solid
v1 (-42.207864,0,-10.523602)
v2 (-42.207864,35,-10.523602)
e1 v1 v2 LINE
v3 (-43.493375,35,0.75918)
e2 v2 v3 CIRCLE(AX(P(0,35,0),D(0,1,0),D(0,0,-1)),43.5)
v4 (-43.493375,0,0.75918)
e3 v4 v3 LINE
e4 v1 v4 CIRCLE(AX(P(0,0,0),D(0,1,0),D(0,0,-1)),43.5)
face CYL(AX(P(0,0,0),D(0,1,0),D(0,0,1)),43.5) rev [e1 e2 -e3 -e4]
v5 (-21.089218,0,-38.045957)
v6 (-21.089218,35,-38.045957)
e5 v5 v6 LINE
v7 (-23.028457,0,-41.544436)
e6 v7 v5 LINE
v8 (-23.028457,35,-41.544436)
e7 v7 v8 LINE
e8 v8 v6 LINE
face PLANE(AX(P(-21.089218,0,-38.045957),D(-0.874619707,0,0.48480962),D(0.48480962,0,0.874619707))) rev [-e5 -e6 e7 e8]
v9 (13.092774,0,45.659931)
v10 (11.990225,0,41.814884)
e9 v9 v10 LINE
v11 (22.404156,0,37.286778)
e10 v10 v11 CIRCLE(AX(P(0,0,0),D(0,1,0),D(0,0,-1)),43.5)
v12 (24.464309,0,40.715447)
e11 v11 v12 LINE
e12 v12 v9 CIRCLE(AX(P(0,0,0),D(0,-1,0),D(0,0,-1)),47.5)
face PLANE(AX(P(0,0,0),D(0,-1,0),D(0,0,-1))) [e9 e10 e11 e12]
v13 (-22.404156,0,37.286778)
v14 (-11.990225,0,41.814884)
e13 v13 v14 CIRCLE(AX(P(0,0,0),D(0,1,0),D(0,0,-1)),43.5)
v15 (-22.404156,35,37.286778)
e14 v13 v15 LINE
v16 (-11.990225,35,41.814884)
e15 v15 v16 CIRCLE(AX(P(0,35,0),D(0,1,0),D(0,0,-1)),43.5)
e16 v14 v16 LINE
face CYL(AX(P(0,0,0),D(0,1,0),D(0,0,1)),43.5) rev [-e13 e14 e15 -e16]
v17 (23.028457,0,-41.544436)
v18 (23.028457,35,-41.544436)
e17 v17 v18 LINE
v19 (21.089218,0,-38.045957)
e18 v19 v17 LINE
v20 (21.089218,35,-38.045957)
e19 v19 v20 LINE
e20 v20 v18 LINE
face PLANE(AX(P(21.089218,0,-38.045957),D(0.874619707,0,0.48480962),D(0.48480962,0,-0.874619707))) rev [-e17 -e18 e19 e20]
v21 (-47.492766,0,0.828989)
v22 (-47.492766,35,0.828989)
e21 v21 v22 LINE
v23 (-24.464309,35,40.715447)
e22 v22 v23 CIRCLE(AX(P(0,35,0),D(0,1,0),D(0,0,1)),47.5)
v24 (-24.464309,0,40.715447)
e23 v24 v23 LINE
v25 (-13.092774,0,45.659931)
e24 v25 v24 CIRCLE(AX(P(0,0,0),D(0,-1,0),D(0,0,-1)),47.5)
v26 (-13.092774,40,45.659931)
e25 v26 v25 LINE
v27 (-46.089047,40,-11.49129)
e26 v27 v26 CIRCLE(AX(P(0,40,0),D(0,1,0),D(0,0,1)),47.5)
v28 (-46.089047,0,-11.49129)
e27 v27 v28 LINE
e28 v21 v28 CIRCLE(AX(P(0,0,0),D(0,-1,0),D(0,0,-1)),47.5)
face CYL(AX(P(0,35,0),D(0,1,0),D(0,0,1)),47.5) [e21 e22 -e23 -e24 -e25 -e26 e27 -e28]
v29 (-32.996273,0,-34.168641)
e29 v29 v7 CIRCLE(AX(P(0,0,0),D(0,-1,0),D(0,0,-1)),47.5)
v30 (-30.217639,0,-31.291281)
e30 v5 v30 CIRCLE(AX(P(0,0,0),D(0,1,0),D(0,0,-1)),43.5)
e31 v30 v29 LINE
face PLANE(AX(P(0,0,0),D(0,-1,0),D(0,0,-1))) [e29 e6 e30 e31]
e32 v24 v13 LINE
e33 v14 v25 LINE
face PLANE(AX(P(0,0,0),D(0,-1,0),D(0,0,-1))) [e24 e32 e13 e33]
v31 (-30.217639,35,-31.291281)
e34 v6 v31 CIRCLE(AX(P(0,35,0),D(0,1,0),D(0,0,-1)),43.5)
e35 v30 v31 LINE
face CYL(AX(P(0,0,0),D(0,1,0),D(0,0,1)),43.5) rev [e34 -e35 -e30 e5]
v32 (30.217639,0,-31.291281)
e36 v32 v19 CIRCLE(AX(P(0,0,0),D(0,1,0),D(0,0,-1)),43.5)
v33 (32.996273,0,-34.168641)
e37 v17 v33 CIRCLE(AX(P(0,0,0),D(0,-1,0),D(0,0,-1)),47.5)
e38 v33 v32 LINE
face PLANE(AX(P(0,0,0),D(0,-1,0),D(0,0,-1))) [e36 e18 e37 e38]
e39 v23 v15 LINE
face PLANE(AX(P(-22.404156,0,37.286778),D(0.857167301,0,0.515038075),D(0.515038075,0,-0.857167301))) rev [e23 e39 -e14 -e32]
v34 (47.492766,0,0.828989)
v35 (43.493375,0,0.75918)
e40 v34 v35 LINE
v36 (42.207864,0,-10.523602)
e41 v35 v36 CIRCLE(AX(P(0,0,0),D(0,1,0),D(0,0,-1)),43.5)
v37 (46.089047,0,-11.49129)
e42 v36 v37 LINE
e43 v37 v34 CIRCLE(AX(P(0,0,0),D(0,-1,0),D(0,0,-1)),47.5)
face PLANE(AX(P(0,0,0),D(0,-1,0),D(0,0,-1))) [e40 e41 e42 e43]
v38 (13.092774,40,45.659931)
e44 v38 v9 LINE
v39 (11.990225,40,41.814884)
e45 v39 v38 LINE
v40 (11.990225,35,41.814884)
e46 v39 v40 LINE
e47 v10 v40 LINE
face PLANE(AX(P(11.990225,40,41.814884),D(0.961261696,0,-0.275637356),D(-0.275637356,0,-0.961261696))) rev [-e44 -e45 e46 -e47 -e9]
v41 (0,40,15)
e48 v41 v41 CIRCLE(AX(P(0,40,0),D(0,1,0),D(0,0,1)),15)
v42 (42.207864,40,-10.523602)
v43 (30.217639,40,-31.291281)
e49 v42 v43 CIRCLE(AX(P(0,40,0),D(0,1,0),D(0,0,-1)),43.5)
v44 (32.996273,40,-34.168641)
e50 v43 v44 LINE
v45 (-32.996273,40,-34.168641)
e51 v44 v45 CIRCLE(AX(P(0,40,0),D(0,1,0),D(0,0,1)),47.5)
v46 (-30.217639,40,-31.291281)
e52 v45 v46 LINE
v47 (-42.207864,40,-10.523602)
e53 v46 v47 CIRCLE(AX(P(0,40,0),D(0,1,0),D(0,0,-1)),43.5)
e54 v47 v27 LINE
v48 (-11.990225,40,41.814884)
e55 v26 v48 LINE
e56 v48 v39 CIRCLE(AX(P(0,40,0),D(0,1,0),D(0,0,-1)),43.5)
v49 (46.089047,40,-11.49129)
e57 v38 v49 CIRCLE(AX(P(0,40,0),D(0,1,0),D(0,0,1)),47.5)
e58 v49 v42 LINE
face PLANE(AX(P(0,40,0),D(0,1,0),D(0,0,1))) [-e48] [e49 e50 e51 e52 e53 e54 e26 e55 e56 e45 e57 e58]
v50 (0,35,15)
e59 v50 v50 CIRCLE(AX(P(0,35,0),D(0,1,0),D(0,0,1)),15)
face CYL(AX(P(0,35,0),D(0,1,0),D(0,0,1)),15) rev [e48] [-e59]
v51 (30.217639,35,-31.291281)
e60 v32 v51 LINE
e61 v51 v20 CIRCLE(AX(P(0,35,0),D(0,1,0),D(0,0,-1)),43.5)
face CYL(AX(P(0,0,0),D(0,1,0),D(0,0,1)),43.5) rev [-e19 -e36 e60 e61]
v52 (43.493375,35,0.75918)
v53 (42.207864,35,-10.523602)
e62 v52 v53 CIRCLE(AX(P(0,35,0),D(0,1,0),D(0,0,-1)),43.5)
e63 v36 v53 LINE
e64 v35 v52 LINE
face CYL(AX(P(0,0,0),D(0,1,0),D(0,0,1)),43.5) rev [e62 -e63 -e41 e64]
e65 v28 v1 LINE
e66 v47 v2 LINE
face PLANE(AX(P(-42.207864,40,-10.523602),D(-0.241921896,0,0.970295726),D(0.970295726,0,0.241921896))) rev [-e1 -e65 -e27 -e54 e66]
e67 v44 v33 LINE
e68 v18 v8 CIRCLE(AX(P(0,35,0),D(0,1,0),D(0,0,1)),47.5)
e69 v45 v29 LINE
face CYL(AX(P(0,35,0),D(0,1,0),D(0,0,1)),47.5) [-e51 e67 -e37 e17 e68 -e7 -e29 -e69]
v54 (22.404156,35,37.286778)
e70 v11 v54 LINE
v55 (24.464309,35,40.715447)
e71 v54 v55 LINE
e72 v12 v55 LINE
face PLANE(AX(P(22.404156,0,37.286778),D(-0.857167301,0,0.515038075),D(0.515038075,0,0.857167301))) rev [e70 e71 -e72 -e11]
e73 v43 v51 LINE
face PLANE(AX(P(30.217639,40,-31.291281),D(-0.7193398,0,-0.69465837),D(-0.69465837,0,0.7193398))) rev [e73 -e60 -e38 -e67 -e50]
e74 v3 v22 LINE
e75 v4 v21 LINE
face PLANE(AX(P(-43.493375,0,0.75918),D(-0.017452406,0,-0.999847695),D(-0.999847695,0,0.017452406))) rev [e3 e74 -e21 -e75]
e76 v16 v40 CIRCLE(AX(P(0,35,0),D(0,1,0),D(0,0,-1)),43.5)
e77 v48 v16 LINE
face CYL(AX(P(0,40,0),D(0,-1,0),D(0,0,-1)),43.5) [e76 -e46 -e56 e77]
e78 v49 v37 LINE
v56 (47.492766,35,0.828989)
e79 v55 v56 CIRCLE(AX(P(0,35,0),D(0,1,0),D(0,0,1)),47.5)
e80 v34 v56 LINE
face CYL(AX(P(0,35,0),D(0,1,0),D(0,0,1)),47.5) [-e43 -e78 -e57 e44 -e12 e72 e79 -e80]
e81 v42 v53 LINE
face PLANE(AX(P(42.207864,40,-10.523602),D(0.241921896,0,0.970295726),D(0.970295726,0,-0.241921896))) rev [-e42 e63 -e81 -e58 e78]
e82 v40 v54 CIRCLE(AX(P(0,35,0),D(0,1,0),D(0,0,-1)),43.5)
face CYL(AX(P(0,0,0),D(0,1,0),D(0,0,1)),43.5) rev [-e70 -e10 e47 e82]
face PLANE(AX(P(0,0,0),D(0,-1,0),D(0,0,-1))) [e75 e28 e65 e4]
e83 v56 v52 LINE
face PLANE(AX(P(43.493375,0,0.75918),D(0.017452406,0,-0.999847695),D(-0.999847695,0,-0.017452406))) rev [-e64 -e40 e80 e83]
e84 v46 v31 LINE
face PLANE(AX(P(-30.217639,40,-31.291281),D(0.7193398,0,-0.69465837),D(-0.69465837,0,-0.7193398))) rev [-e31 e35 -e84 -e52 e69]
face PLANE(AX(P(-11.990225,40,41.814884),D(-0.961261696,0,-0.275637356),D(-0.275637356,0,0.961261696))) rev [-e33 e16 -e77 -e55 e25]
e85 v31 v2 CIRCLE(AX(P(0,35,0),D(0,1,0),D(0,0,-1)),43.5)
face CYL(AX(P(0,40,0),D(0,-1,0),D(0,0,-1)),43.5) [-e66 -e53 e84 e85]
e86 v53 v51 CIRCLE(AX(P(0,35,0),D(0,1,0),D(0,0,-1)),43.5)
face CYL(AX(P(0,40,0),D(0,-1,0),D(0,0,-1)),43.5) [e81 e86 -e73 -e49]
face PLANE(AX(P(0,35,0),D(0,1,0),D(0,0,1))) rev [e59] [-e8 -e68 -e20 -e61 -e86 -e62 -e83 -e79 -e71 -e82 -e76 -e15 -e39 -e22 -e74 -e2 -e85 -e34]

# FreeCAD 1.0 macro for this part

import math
import FreeCAD as App
import Part
import Sketcher
from FreeCAD import Vector
Q = App.Units.Quantity

doc = App.newDocument("Part")
params = doc.addObject("Spreadsheet::Sheet", "Params")
for row, (alias, value) in enumerate([
    ("sketch1_diameter", "95 mm"),
    ("sketch1_diameter2", "30 mm"),
    ("pad1_length", "5 mm"),
    ("sketch2_radius", "43.5 mm"),
    ("sketch2_radius2", "47.5 mm"),
    ("pocket1_length", "5 mm"),
    ("sketch3_radius", "47.5 mm"),
    ("sketch3_radius2", "43.5 mm"),
    ("pad2_length", "35 mm"),
], start=1):
    params.set(f"A{row}", alias)
    params.set(f"B{row}", "=" + value)
    params.setAlias(f"B{row}", alias)

body = doc.addObject("PartDesign::Body", "Body")

sketch1 = doc.addObject("Sketcher::SketchObject", "Sketch")
body.addObject(sketch1)
sketch1.AttachmentSupport = (doc.XZ_Plane, [""])
sketch1.MapMode = "FlatFace"
sketch1.AttachmentOffset = App.Placement(Vector(0, 0, -40), App.Rotation())
sketch1.addGeometry([
    Part.Circle(Vector(0, 0, 0), Vector(0, 0, 1), 48),
    Part.Circle(Vector(0, 0, 0), Vector(0, 0, 1), 15),
], False)
sketch1.addConstraint([
    Sketcher.Constraint("Coincident", 0, 3, -1, 1),
    Sketcher.Constraint("Coincident", 1, 3, -1, 1),
    Sketcher.Constraint("Diameter", 0, Q("95 mm")),
    Sketcher.Constraint("Diameter", 1, Q("30 mm")),
])
sketch1.setExpression("Constraints[2]", "Params.sketch1_diameter")
sketch1.setExpression("Constraints[3]", "Params.sketch1_diameter2")
pad1 = doc.addObject("PartDesign::Pad", "Pad")
body.addObject(pad1)
pad1.Profile = sketch1
pad1.setExpression("Length", "Params.pad1_length")

sketch2 = doc.addObject("Sketcher::SketchObject", "Sketch001")
body.addObject(sketch2)
sketch2.AttachmentSupport = (doc.XZ_Plane, [""])
sketch2.MapMode = "FlatFace"
sketch2.AttachmentOffset = App.Placement(Vector(0, 0, -40), App.Rotation())
sketch2.addGeometry([
    Part.LineSegment(Vector(-13.1, 45.7, 0), Vector(-12, 41.8, 0)),
    Part.ArcOfCircle(Part.Circle(Vector(0, 0, 0), Vector(0, 0, 1), 43.5), math.radians(74), math.radians(106)),
    Part.LineSegment(Vector(12, 41.8, 0), Vector(13.1, 45.7, 0)),
    Part.ArcOfCircle(Part.Circle(Vector(0, 0, 0), Vector(0, 0, 1), 47.5), math.radians(74), math.radians(106)),
    Part.LineSegment(Vector(30.2, -31.3, 0), Vector(33, -34.2, 0)),
    Part.ArcOfCircle(Part.Circle(Vector(0, 0, 0), Vector(0, 0, 1), 47.5), math.radians(-46), math.radians(-14)),
    Part.LineSegment(Vector(46.1, -11.5, 0), Vector(42.2, -10.5, 0)),
    Part.ArcOfCircle(Part.Circle(Vector(0, 0, 0), Vector(0, 0, 1), 43.5), math.radians(-46), math.radians(-14)),
    Part.LineSegment(Vector(-42.2, -10.5, 0), Vector(-46.1, -11.5, 0)),
    Part.ArcOfCircle(Part.Circle(Vector(0, 0, 0), Vector(0, 0, 1), 47.5), math.radians(-166), math.radians(-134)),
    Part.LineSegment(Vector(-33, -34.2, 0), Vector(-30.2, -31.3, 0)),
    Part.ArcOfCircle(Part.Circle(Vector(0, 0, 0), Vector(0, 0, 1), 43.5), math.radians(-166), math.radians(-134)),
], False)
sketch2.addConstraint([
    Sketcher.Constraint("Coincident", 0, 2, 1, 2),
    Sketcher.Constraint("Coincident", 1, 1, 2, 1),
    Sketcher.Constraint("Coincident", 2, 2, 3, 1),
    Sketcher.Constraint("Coincident", 3, 2, 0, 1),
    Sketcher.Constraint("Coincident", 4, 2, 5, 1),
    Sketcher.Constraint("Coincident", 5, 2, 6, 1),
    Sketcher.Constraint("Coincident", 6, 2, 7, 2),
    Sketcher.Constraint("Coincident", 7, 1, 4, 1),
    Sketcher.Constraint("Coincident", 8, 2, 9, 1),
    Sketcher.Constraint("Coincident", 9, 2, 10, 1),
    Sketcher.Constraint("Coincident", 10, 2, 11, 2),
    Sketcher.Constraint("Coincident", 11, 1, 8, 1),
    Sketcher.Constraint("Coincident", 1, 3, -1, 1),
    Sketcher.Constraint("Coincident", 3, 3, -1, 1),
    Sketcher.Constraint("Coincident", 5, 3, -1, 1),
    Sketcher.Constraint("Coincident", 7, 3, -1, 1),
    Sketcher.Constraint("Coincident", 9, 3, -1, 1),
    Sketcher.Constraint("Coincident", 11, 3, -1, 1),
    Sketcher.Constraint("Equal", 3, 5),
    Sketcher.Constraint("Equal", 1, 7),
    Sketcher.Constraint("Equal", 5, 9),
    Sketcher.Constraint("Equal", 7, 11),
    Sketcher.Constraint("Horizontal", 0, 2, 1, 1),
    Sketcher.Constraint("Horizontal", 2, 2, 3, 2),
    Sketcher.Constraint("Horizontal", 5, 2, 8, 2),
    Sketcher.Constraint("Horizontal", 4, 2, 9, 2),
    Sketcher.Constraint("Horizontal", 7, 1, 10, 2),
    Sketcher.Constraint("Horizontal", 6, 2, 11, 1),
    Sketcher.Constraint("Radius", 1, Q("43.5 mm")),
    Sketcher.Constraint("Radius", 3, Q("47.5 mm")),
    Sketcher.Constraint("Angle", 0, Q("-74 deg")),
    Sketcher.Constraint("Angle", 4, Q("-46 deg")),
    Sketcher.Constraint("Angle", 6, Q("166 deg")),
    Sketcher.Constraint("DistanceX", 0, 2, 2, 2, Q("25.082999 mm")),
    Sketcher.Constraint("DistanceY", 4, 2, -1, 1, Q("34.168641 mm")),
    Sketcher.Constraint("DistanceY", 5, 2, -1, 1, Q("11.49129 mm")),
])
sketch2.setExpression("Constraints[28]", "Params.sketch2_radius")
sketch2.setExpression("Constraints[29]", "Params.sketch2_radius2")
pocket1 = doc.addObject("PartDesign::Pocket", "Pocket")
body.addObject(pocket1)
pocket1.Profile = sketch2
pocket1.setExpression("Length", "Params.pocket1_length")
pocket1.Reversed = True

sketch3 = doc.addObject("Sketcher::SketchObject", "Sketch002")
body.addObject(sketch3)
sketch3.AttachmentSupport = (doc.XZ_Plane, [""])
sketch3.MapMode = "FlatFace"
sketch3.AttachmentOffset = App.Placement(Vector(0, 0, -35), App.Rotation())
sketch3.addGeometry([
    Part.LineSegment(Vector(-43.5, 0.8, 0), Vector(-47.5, 0.8, 0)),
    Part.ArcOfCircle(Part.Circle(Vector(0, 0, 0), Vector(0, 0, 1), 47.5), math.radians(179), math.radians(194)),
    Part.LineSegment(Vector(-46.1, -11.5, 0), Vector(-42.2, -10.5, 0)),
    Part.ArcOfCircle(Part.Circle(Vector(0, 0, 0), Vector(0, 0, 1), 43.5), math.radians(179), math.radians(194)),
    Part.LineSegment(Vector(-24.5, 40.7, 0), Vector(-22.4, 37.3, 0)),
    Part.ArcOfCircle(Part.Circle(Vector(0, 0, 0), Vector(0, 0, 1), 43.5), math.radians(106), math.radians(121)),
    Part.LineSegment(Vector(-12, 41.8, 0), Vector(-13.1, 45.7, 0)),
    Part.ArcOfCircle(Part.Circle(Vector(0, 0, 0), Vector(0, 0, 1), 47.5), math.radians(106), math.radians(121)),
    Part.LineSegment(Vector(47.5, 0.8, 0), Vector(43.5, 0.8, 0)),
    Part.ArcOfCircle(Part.Circle(Vector(0, 0, 0), Vector(0, 0, 1), 43.5), math.radians(-14), math.radians(1)),
    Part.LineSegment(Vector(42.2, -10.5, 0), Vector(46.1, -11.5, 0)),
    Part.ArcOfCircle(Part.Circle(Vector(0, 0, 0), Vector(0, 0, 1), 47.5), math.radians(-14), math.radians(1)),
    Part.LineSegment(Vector(22.4, 37.3, 0), Vector(24.5, 40.7, 0)),
    Part.ArcOfCircle(Part.Circle(Vector(0, 0, 0), Vector(0, 0, 1), 47.5), math.radians(59), math.radians(74)),
    Part.LineSegment(Vector(13.1, 45.7, 0), Vector(12, 41.8, 0)),
    Part.ArcOfCircle(Part.Circle(Vector(0, 0, 0), Vector(0, 0, 1), 43.5), math.radians(59), math.radians(74)),
    Part.LineSegment(Vector(-23, -41.5, 0), Vector(-21.1, -38, 0)),
    Part.ArcOfCircle(Part.Circle(Vector(0, 0, 0), Vector(0, 0, 1), 43.5), math.radians(-134), math.radians(-119)),
    Part.LineSegment(Vector(-30.2, -31.3, 0), Vector(-33, -34.2, 0)),
    Part.ArcOfCircle(Part.Circle(Vector(0, 0, 0), Vector(0, 0, 1), 47.5), math.radians(-134), math.radians(-119)),
    Part.LineSegment(Vector(21.1, -38, 0), Vector(23, -41.5, 0)),
    Part.ArcOfCircle(Part.Circle(Vector(0, 0, 0), Vector(0, 0, 1), 47.5), math.radians(-61), math.radians(-46)),
    Part.LineSegment(Vector(33, -34.2, 0), Vector(30.2, -31.3, 0)),
    Part.ArcOfCircle(Part.Circle(Vector(0, 0, 0), Vector(0, 0, 1), 43.5), math.radians(-61), math.radians(-46)),
], False)
sketch3.addConstraint([
    Sketcher.Constraint("Coincident", 0, 2, 1, 1),
    Sketcher.Constraint("Coincident", 1, 2, 2, 1),
    Sketcher.Constraint("Coincident", 2, 2, 3, 2),
    Sketcher.Constraint("Coincident", 3, 1, 0, 1),
    Sketcher.Constraint("Coincident", 4, 2, 5, 2),
    Sketcher.Constraint("Coincident", 5, 1, 6, 1),
    Sketcher.Constraint("Coincident", 6, 2, 7, 1),
    Sketcher.Constraint("Coincident", 7, 2, 4, 1),
    Sketcher.Constraint("Coincident", 8, 2, 9, 2),
    Sketcher.Constraint("Coincident", 9, 1, 10, 1),
    Sketcher.Constraint("Coincident", 10, 2, 11, 1),
    Sketcher.Constraint("Coincident", 11, 2, 8, 1),
    Sketcher.Constraint("Coincident", 12, 2, 13, 1),
    Sketcher.Constraint("Coincident", 13, 2, 14, 1),
    Sketcher.Constraint("Coincident", 14, 2, 15, 2),
    Sketcher.Constraint("Coincident", 15, 1, 12, 1),
    Sketcher.Constraint("Coincident", 16, 2, 17, 2),
    Sketcher.Constraint("Coincident", 17, 1, 18, 1),
    Sketcher.Constraint("Coincident", 18, 2, 19, 1),
    Sketcher.Constraint("Coincident", 19, 2, 16, 1),
    Sketcher.Constraint("Coincident", 20, 2, 21, 1),
    Sketcher.Constraint("Coincident", 21, 2, 22, 1),
    Sketcher.Constraint("Coincident", 22, 2, 23, 2),
    Sketcher.Constraint("Coincident", 23, 1, 20, 1),
    Sketcher.Constraint("Coincident", 1, 3, -1, 1),
    Sketcher.Constraint("Coincident", 3, 3, -1, 1),
    Sketcher.Constraint("Coincident", 5, 3, -1, 1),
    Sketcher.Constraint("Coincident", 7, 3, -1, 1),
    Sketcher.Constraint("Coincident", 9, 3, -1, 1),
    Sketcher.Constraint("Coincident", 11, 3, -1, 1),
    Sketcher.Constraint("Coincident", 13, 3, -1, 1),
    Sketcher.Constraint("Coincident", 15, 3, -1, 1),
    Sketcher.Constraint("Coincident", 17, 3, -1, 1),
    Sketcher.Constraint("Coincident", 19, 3, -1, 1),
    Sketcher.Constraint("Coincident", 21, 3, -1, 1),
    Sketcher.Constraint("Coincident", 23, 3, -1, 1),
    Sketcher.Constraint("Equal", 3, 5),
    Sketcher.Constraint("Equal", 1, 7),
    Sketcher.Constraint("Equal", 5, 9),
    Sketcher.Constraint("Equal", 7, 11),
    Sketcher.Constraint("Equal", 11, 13),
    Sketcher.Constraint("Equal", 9, 15),
    Sketcher.Constraint("Equal", 15, 17),
    Sketcher.Constraint("Equal", 13, 19),
    Sketcher.Constraint("Equal", 19, 21),
    Sketcher.Constraint("Equal", 17, 23),
    Sketcher.Constraint("Horizontal", 3, 1, 8, 2),
    Sketcher.Constraint("Horizontal", 2, 2, 9, 1),
    Sketcher.Constraint("Horizontal", 1, 2, 10, 2),
    Sketcher.Constraint("Horizontal", 0, 2, 11, 2),
    Sketcher.Constraint("Horizontal", 7, 2, 12, 2),
    Sketcher.Constraint("Horizontal", 6, 2, 13, 2),
    Sketcher.Constraint("Horizontal", 5, 1, 14, 2),
    Sketcher.Constraint("Horizontal", 4, 2, 15, 1),
    Sketcher.Constraint("Horizontal", 19, 2, 20, 2),
    Sketcher.Constraint("Horizontal", 18, 2, 21, 2),
    Sketcher.Constraint("Horizontal", 17, 1, 22, 2),
    Sketcher.Constraint("Horizontal", 16, 2, 23, 1),
    Sketcher.Constraint("Radius", 1, Q("47.5 mm")),
    Sketcher.Constraint("Radius", 3, Q("43.5 mm")),
    Sketcher.Constraint("Angle", 0, Q("179 deg")),
    Sketcher.Constraint("Angle", 2, Q("14 deg")),
    Sketcher.Constraint("Angle", 4, Q("-59 deg")),
    Sketcher.Constraint("Angle", 6, Q("106 deg")),
    Sketcher.Constraint("Angle", 16, Q("61 deg")),
    Sketcher.Constraint("Angle", 18, Q("-134 deg")),
    Sketcher.Constraint("DistanceX", 5, 1, 13, 2, Q("25.082999 mm")),
    Sketcher.Constraint("DistanceX", 0, 2, 2, 2, Q("5.284901 mm")),
    Sketcher.Constraint("DistanceY", -1, 1, 0, 2, Q("0.828989 mm")),
    Sketcher.Constraint("DistanceX", 7, 2, -1, 1, Q("24.464309 mm")),
    Sketcher.Constraint("DistanceX", 16, 2, -1, 1, Q("21.089218 mm")),
    Sketcher.Constraint("DistanceX", 17, 1, -1, 1, Q("30.217639 mm")),
])
sketch3.setExpression("Constraints[58]", "Params.sketch3_radius")
sketch3.setExpression("Constraints[59]", "Params.sketch3_radius2")
pad2 = doc.addObject("PartDesign::Pad", "Pad001")
body.addObject(pad2)
pad2.Profile = sketch3
pad2.setExpression("Length", "Params.pad2_length")

doc.recompute()
